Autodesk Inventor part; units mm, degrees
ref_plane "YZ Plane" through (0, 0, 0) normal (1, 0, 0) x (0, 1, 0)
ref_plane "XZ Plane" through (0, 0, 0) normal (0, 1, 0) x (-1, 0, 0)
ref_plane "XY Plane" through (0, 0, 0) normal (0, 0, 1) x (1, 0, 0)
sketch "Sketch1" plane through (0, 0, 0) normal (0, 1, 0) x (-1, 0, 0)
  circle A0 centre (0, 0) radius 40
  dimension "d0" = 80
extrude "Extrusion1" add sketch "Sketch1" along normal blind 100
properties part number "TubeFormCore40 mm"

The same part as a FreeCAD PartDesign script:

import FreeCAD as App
import Part
import Sketcher
from FreeCAD import Vector
Q = App.Units.Quantity

doc = App.newDocument("Part")
body = doc.addObject("PartDesign::Body", "Body")

# Sketch on XZ plane
sketch1 = doc.addObject("Sketcher::SketchObject", "Sketch")
body.addObject(sketch1)
sketch1.AttachmentSupport = (doc.XZ_Plane, [""])
sketch1.MapMode = "FlatFace"
sketch1.addGeometry(Part.Circle(Vector(0, 0, 0), Vector(0, 0, 1), 40), False)
sketch1.addConstraint([
    Sketcher.Constraint("Coincident", 0, 3, -1, 1),
    Sketcher.Constraint("Diameter", 0, Q("3.1496 in")),
])
pad1 = doc.addObject("PartDesign::Pad", "Pad")
body.addObject(pad1)
pad1.Profile = sketch1
pad1.Length = Q("3.9370079 in")
pad1.Reversed = True

doc.recompute()
